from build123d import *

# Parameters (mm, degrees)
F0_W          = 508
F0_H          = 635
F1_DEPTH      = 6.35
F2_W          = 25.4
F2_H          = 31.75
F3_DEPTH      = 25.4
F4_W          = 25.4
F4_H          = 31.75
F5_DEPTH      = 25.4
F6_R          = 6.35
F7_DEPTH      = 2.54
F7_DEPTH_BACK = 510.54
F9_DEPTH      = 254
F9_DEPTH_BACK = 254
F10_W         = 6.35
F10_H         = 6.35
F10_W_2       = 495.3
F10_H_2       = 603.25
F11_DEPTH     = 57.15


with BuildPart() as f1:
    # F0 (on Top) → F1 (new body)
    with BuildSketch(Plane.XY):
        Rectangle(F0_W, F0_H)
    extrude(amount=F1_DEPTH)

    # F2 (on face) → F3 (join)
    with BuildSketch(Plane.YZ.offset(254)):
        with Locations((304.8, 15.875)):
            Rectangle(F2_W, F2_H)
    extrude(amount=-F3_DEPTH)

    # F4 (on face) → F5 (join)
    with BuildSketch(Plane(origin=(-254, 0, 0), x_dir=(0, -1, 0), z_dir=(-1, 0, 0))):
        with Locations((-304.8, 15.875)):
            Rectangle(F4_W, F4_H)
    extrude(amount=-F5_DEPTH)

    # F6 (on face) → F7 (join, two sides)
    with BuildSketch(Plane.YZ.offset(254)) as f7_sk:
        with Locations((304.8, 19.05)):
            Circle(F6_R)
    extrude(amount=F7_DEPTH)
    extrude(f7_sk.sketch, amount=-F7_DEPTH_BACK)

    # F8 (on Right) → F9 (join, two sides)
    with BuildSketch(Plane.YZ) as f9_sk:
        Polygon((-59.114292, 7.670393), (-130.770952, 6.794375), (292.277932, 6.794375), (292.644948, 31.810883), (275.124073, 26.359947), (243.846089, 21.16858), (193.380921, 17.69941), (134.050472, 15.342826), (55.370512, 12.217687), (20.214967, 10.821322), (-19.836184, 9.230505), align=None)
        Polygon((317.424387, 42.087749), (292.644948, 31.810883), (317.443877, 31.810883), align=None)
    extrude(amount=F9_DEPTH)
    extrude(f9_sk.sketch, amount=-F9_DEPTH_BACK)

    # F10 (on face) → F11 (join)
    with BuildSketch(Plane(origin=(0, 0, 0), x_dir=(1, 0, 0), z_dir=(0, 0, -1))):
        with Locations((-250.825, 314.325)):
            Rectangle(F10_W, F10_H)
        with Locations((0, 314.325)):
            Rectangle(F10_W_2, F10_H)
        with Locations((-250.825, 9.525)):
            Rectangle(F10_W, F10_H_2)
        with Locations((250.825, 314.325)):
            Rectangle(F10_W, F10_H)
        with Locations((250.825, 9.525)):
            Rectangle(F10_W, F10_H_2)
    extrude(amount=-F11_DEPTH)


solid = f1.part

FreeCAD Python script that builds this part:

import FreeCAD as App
import Part
import Sketcher

V = App.Vector
Q = App.Units.Quantity

doc = App.newDocument("Part")
body = doc.addObject("PartDesign::Body", "Body")
body.AllowCompound = True

# Sketch on XY plane
sketch1 = body.newObject("Sketcher::SketchObject", "Sketch")
sketch1.AttachmentSupport = (doc.getObject("XY_Plane"), [""])
sketch1.MapMode = "FlatFace"
sketch1.addGeometry([
    Part.LineSegment(V(-254, 317.5, 0), V(-254, -317.5, 0)),
    Part.LineSegment(V(-254, -317.5, 0), V(254, -317.5, 0)),
    Part.LineSegment(V(254, -317.5, 0), V(254, 317.5, 0)),
    Part.LineSegment(V(254, 317.5, 0), V(-254, 317.5, 0)),
], False)
sketch1.addConstraint([
    Sketcher.Constraint("Coincident", 0, 2, 1, 1),
    Sketcher.Constraint("Coincident", 1, 2, 2, 1),
    Sketcher.Constraint("Coincident", 2, 2, 3, 1),
    Sketcher.Constraint("Coincident", 3, 2, 0, 1),
    Sketcher.Constraint("Vertical", 0),
    Sketcher.Constraint("Horizontal", 1),
    Sketcher.Constraint("Vertical", 2),
    Sketcher.Constraint("Horizontal", 3),
    Sketcher.Constraint("Symmetric", 0, 2, 2, 2, -1, 1),
    Sketcher.Constraint("DistanceX", 1, 1, 1, 2, Q("20 in")),
    Sketcher.Constraint("DistanceY", 0, 2, 0, 1, Q("25 in")),
])
pad1 = body.newObject("PartDesign::Pad", "Pad")
pad1.Profile = sketch1
pad1.Length = Q("0.25 in")

# Sketch on YZ plane
sketch2 = body.newObject("Sketcher::SketchObject", "Sketch001")
sketch2.AttachmentSupport = (doc.getObject("YZ_Plane"), [""])
sketch2.MapMode = "FlatFace"
sketch2.AttachmentOffset = App.Placement(V(0, 0, 10 * 25.4), App.Rotation())
sketch2.addGeometry([
    Part.LineSegment(V(292.1, 31.75, 0), V(292.1, 0, 0)),
    Part.LineSegment(V(292.1, 0, 0), V(317.5, 0, 0)),
    Part.LineSegment(V(317.5, 0, 0), V(317.5, 31.75, 0)),
    Part.LineSegment(V(317.5, 31.75, 0), V(292.1, 31.75, 0)),
], False)
sketch2.addConstraint([
    Sketcher.Constraint("Coincident", 0, 2, 1, 1),
    Sketcher.Constraint("Coincident", 1, 2, 2, 1),
    Sketcher.Constraint("Coincident", 2, 2, 3, 1),
    Sketcher.Constraint("Coincident", 3, 2, 0, 1),
    Sketcher.Constraint("Vertical", 0),
    Sketcher.Constraint("Horizontal", 1),
    Sketcher.Constraint("Vertical", 2),
    Sketcher.Constraint("Horizontal", 3),
    Sketcher.Constraint("PointOnObject", 0, 2, -1),
    Sketcher.Constraint("DistanceX", 1, 1, 1, 2, Q("1 in")),
    Sketcher.Constraint("DistanceY", 0, 2, 0, 1, Q("1.25 in")),
    Sketcher.Constraint("DistanceX", -1, 1, 0, 2, Q("11.5 in")),
])
pad2 = body.newObject("PartDesign::Pad", "Pad001")
pad2.Profile = sketch2
pad2.Length = Q("1 in")
pad2.Reversed = True

# Sketch on YZ plane
sketch3 = body.newObject("Sketcher::SketchObject", "Sketch002")
sketch3.AttachmentSupport = (doc.getObject("YZ_Plane"), [""])
sketch3.MapMode = "FlatFace"
sketch3.AttachmentOffset = App.Placement(V(0, 0, -10 * 25.4), App.Rotation())
sketch3.addGeometry([
    Part.LineSegment(V(317.5, 31.75, 0), V(317.5, 0, 0)),
    Part.LineSegment(V(317.5, 0, 0), V(292.1, 0, 0)),
    Part.LineSegment(V(292.1, 0, 0), V(292.1, 31.75, 0)),
    Part.LineSegment(V(292.1, 31.75, 0), V(317.5, 31.75, 0)),
], False)
sketch3.addConstraint([
    Sketcher.Constraint("Coincident", 0, 2, 1, 1),
    Sketcher.Constraint("Coincident", 1, 2, 2, 1),
    Sketcher.Constraint("Coincident", 2, 2, 3, 1),
    Sketcher.Constraint("Coincident", 3, 2, 0, 1),
    Sketcher.Constraint("Vertical", 0),
    Sketcher.Constraint("Horizontal", 1),
    Sketcher.Constraint("Vertical", 2),
    Sketcher.Constraint("Horizontal", 3),
    Sketcher.Constraint("PointOnObject", 0, 2, -1),
    Sketcher.Constraint("DistanceX", 1, 2, 1, 1, Q("1 in")),
    Sketcher.Constraint("DistanceY", 0, 2, 0, 1, Q("1.25 in")),
    Sketcher.Constraint("DistanceX", -1, 1, 0, 2, Q("12.5 in")),
])
pad3 = body.newObject("PartDesign::Pad", "Pad002")
pad3.Profile = sketch3
pad3.Length = Q("1 in")

# Sketch on YZ plane
sketch4 = body.newObject("Sketcher::SketchObject", "Sketch003")
sketch4.AttachmentSupport = (doc.getObject("YZ_Plane"), [""])
sketch4.MapMode = "FlatFace"
sketch4.AttachmentOffset = App.Placement(V(0, 0, 10 * 25.4), App.Rotation())
sketch4.addGeometry(Part.Circle(V(304.8, 19.05, 0), V(0, 0, 1), 6.35), False)
sketch4.addConstraint([
    Sketcher.Constraint("Diameter", 0, Q("0.5 in")),
    Sketcher.Constraint("DistanceX", -1, 1, 0, 3, Q("12 in")),
    Sketcher.Constraint("DistanceY", -1, 1, 0, 3, Q("0.75 in")),
])
pad4 = body.newObject("PartDesign::Pad", "Pad003")
pad4.Profile = sketch4
pad4.Type = "TwoLengths"
pad4.Length = Q("0.1 in")
pad4.Length2 = Q("20.1 in")

# Sketch on YZ plane
sketch5 = body.newObject("Sketcher::SketchObject", "Sketch004")
sketch5.AttachmentSupport = (doc.getObject("YZ_Plane"), [""])
sketch5.MapMode = "FlatFace"
sketch5.addGeometry([
    Part.LineSegment(V(-59.114292, 7.670393, 0), V(-130.770952, 6.794375, 0)),  # 0
    Part.LineSegment(V(-130.770952, 6.794375, 0), V(292.277932, 6.794375, 0)),  # 1
    Part.LineSegment(V(292.277932, 6.794375, 0), V(292.644948, 31.810883, 0)),  # 2
    Part.LineSegment(V(292.644948, 31.810883, 0), V(275.124073, 26.359947, 0)),  # 3
    Part.LineSegment(V(275.124073, 26.359947, 0), V(243.846089, 21.16858, 0)),  # 4
    Part.LineSegment(V(243.846089, 21.16858, 0), V(193.380921, 17.69941, 0)),  # 5
    Part.LineSegment(V(193.380921, 17.69941, 0), V(134.050472, 15.342826, 0)),  # 6
    Part.LineSegment(V(134.050472, 15.342826, 0), V(55.370512, 12.217687, 0)),  # 7
    Part.LineSegment(V(55.370512, 12.217687, 0), V(20.214967, 10.821322, 0)),  # 8
    Part.LineSegment(V(20.214967, 10.821322, 0), V(-19.836184, 9.230505, 0)),  # 9
    Part.LineSegment(V(-19.836184, 9.230505, 0), V(-59.114292, 7.670393, 0)),  # 10
    Part.LineSegment(V(317.424387, 42.087749, 0), V(292.644948, 31.810883, 0)),  # 11
    Part.LineSegment(V(292.644948, 31.810883, 0), V(317.443877, 31.810883, 0)),  # 12
    Part.LineSegment(V(317.443877, 31.810883, 0), V(317.424387, 42.087749, 0)),  # 13
], False)
sketch5.addConstraint([
    Sketcher.Constraint("Coincident", 0, 2, 1, 1),
    Sketcher.Constraint("Coincident", 1, 2, 2, 1),
    Sketcher.Constraint("Coincident", 2, 2, 3, 1),
    Sketcher.Constraint("Coincident", 3, 2, 4, 1),
    Sketcher.Constraint("Coincident", 4, 2, 5, 1),
    Sketcher.Constraint("Coincident", 5, 2, 6, 1),
    Sketcher.Constraint("Coincident", 6, 2, 7, 1),
    Sketcher.Constraint("Coincident", 7, 2, 8, 1),
    Sketcher.Constraint("Coincident", 8, 2, 9, 1),
    Sketcher.Constraint("Coincident", 9, 2, 10, 1),
    Sketcher.Constraint("Coincident", 10, 2, 0, 1),
    Sketcher.Constraint("Coincident", 11, 2, 12, 1),
    Sketcher.Constraint("Coincident", 12, 2, 13, 1),
    Sketcher.Constraint("Coincident", 13, 2, 11, 1),
    Sketcher.Constraint("Horizontal", 1),
    Sketcher.Constraint("Horizontal", 12),
    Sketcher.Constraint("Coincident", 11, 2, 2, 2),
    Sketcher.Constraint("Parallel", 6, 7),
    Sketcher.Constraint("Parallel", 7, 8),
    Sketcher.Constraint("Parallel", 8, 9),
    Sketcher.Constraint("Parallel", 9, 10),
    Sketcher.Constraint("Distance", 2, Q("25.0192 mm")),
    Sketcher.Constraint("Distance", 7, Q("78.742 mm")),
    Sketcher.Constraint("DistanceX", 12, 1, 12, 2, Q("24.798929 mm")),
    Sketcher.Constraint("DistanceX", 0, 2, 2, 2, Q("423.4159 mm")),
    Sketcher.Constraint("DistanceX", 6, 2, 3, 2, Q("141.073601 mm")),
    Sketcher.Constraint("Distance", 5, Q("50.58427 mm")),
    Sketcher.Constraint("Distance", 6, Q("59.377232 mm")),
    Sketcher.Constraint("Distance", 9, Q("40.082732 mm")),
    Sketcher.Constraint("Distance", 10, Q("39.309079 mm")),
    Sketcher.Constraint("DistanceX", 1, 1, 1, 2, Q("423.048884 mm")),
    Sketcher.Constraint("DistanceX", 0, 2, -1, 1, Q("130.770952 mm")),
    Sketcher.Constraint("DistanceX", -1, 1, 4, 2, Q("243.846089 mm")),
    Sketcher.Constraint("DistanceY", -1, 1, 4, 2, Q("21.16858 mm")),
    Sketcher.Constraint("DistanceX", -1, 1, 5, 2, Q("193.380921 mm")),
    Sketcher.Constraint("DistanceX", -1, 1, 7, 2, Q("55.370512 mm")),
    Sketcher.Constraint("DistanceY", -1, 1, 13, 2, Q("42.087749 mm")),
    Sketcher.Constraint("DistanceY", 1, 2, 3, 2, Q("19.565572 mm")),
    Sketcher.Constraint("DistanceY", 6, 2, 3, 2, Q("11.017121 mm")),
    Sketcher.Constraint("DistanceX", 0, 2, 8, 2, Q("150.985919 mm")),
    Sketcher.Constraint("DistanceX", 13, 2, 12, 2, Q("0.01949 mm")),
])
pad5 = body.newObject("PartDesign::Pad", "Pad004")
pad5.Profile = sketch5
pad5.Type = "TwoLengths"
pad5.Length = Q("10 in")
pad5.Length2 = Q("10 in")

# Sketch on XY plane
sketch6 = body.newObject("Sketcher::SketchObject", "Sketch005")
sketch6.AttachmentSupport = (doc.getObject("XY_Plane"), [""])
sketch6.MapMode = "FlatFace"
sketch6.addGeometry([
    Part.LineSegment(V(-254, -317.5, 0), V(-254, 292.1, 0)),  # 0
    Part.LineSegment(V(-254, 292.1, 0), V(-247.65, 292.1, 0)),  # 1
    Part.LineSegment(V(-247.65, 292.1, 0), V(-247.65, -311.15, 0)),  # 2
    Part.LineSegment(V(-247.65, -311.15, 0), V(247.65, -311.15, 0)),  # 3
    Part.LineSegment(V(247.65, -311.15, 0), V(247.65, 292.1, 0)),  # 4
    Part.LineSegment(V(247.65, 292.1, 0), V(254, 292.1, 0)),  # 5
    Part.LineSegment(V(254, 292.1, 0), V(254, -317.5, 0)),  # 6
    Part.LineSegment(V(254, -317.5, 0), V(-254, -317.5, 0)),  # 7
], False)
sketch6.addConstraint([
    Sketcher.Constraint("Coincident", 0, 2, 1, 1),
    Sketcher.Constraint("Coincident", 1, 2, 2, 1),
    Sketcher.Constraint("Coincident", 2, 2, 3, 1),
    Sketcher.Constraint("Coincident", 3, 2, 4, 1),
    Sketcher.Constraint("Coincident", 4, 2, 5, 1),
    Sketcher.Constraint("Coincident", 5, 2, 6, 1),
    Sketcher.Constraint("Coincident", 6, 2, 7, 1),
    Sketcher.Constraint("Coincident", 7, 2, 0, 1),
    Sketcher.Constraint("Vertical", 0),
    Sketcher.Constraint("Horizontal", 1),
    Sketcher.Constraint("Vertical", 2),
    Sketcher.Constraint("Horizontal", 3),
    Sketcher.Constraint("Vertical", 4),
    Sketcher.Constraint("Horizontal", 5),
    Sketcher.Constraint("Vertical", 6),
    Sketcher.Constraint("Horizontal", 7),
    Sketcher.Constraint("Symmetric", 1, 2, 4, 2, -2),
    Sketcher.Constraint("Equal", 1, 5),
    Sketcher.Constraint("DistanceX", 7, 2, 7, 1, Q("20 in")),
    Sketcher.Constraint("DistanceY", 0, 1, 0, 2, Q("24 in")),
    Sketcher.Constraint("DistanceX", 3, 1, 3, 2, Q("19.5 in")),
    Sketcher.Constraint("DistanceY", 2, 2, 2, 1, Q("23.75 in")),
    Sketcher.Constraint("DistanceY", -1, 1, 0, 2, Q("11.5 in")),
])
pad6 = body.newObject("PartDesign::Pad", "Pad005")
pad6.Profile = sketch6
pad6.Length = Q("2.25 in")

doc.recompute()
